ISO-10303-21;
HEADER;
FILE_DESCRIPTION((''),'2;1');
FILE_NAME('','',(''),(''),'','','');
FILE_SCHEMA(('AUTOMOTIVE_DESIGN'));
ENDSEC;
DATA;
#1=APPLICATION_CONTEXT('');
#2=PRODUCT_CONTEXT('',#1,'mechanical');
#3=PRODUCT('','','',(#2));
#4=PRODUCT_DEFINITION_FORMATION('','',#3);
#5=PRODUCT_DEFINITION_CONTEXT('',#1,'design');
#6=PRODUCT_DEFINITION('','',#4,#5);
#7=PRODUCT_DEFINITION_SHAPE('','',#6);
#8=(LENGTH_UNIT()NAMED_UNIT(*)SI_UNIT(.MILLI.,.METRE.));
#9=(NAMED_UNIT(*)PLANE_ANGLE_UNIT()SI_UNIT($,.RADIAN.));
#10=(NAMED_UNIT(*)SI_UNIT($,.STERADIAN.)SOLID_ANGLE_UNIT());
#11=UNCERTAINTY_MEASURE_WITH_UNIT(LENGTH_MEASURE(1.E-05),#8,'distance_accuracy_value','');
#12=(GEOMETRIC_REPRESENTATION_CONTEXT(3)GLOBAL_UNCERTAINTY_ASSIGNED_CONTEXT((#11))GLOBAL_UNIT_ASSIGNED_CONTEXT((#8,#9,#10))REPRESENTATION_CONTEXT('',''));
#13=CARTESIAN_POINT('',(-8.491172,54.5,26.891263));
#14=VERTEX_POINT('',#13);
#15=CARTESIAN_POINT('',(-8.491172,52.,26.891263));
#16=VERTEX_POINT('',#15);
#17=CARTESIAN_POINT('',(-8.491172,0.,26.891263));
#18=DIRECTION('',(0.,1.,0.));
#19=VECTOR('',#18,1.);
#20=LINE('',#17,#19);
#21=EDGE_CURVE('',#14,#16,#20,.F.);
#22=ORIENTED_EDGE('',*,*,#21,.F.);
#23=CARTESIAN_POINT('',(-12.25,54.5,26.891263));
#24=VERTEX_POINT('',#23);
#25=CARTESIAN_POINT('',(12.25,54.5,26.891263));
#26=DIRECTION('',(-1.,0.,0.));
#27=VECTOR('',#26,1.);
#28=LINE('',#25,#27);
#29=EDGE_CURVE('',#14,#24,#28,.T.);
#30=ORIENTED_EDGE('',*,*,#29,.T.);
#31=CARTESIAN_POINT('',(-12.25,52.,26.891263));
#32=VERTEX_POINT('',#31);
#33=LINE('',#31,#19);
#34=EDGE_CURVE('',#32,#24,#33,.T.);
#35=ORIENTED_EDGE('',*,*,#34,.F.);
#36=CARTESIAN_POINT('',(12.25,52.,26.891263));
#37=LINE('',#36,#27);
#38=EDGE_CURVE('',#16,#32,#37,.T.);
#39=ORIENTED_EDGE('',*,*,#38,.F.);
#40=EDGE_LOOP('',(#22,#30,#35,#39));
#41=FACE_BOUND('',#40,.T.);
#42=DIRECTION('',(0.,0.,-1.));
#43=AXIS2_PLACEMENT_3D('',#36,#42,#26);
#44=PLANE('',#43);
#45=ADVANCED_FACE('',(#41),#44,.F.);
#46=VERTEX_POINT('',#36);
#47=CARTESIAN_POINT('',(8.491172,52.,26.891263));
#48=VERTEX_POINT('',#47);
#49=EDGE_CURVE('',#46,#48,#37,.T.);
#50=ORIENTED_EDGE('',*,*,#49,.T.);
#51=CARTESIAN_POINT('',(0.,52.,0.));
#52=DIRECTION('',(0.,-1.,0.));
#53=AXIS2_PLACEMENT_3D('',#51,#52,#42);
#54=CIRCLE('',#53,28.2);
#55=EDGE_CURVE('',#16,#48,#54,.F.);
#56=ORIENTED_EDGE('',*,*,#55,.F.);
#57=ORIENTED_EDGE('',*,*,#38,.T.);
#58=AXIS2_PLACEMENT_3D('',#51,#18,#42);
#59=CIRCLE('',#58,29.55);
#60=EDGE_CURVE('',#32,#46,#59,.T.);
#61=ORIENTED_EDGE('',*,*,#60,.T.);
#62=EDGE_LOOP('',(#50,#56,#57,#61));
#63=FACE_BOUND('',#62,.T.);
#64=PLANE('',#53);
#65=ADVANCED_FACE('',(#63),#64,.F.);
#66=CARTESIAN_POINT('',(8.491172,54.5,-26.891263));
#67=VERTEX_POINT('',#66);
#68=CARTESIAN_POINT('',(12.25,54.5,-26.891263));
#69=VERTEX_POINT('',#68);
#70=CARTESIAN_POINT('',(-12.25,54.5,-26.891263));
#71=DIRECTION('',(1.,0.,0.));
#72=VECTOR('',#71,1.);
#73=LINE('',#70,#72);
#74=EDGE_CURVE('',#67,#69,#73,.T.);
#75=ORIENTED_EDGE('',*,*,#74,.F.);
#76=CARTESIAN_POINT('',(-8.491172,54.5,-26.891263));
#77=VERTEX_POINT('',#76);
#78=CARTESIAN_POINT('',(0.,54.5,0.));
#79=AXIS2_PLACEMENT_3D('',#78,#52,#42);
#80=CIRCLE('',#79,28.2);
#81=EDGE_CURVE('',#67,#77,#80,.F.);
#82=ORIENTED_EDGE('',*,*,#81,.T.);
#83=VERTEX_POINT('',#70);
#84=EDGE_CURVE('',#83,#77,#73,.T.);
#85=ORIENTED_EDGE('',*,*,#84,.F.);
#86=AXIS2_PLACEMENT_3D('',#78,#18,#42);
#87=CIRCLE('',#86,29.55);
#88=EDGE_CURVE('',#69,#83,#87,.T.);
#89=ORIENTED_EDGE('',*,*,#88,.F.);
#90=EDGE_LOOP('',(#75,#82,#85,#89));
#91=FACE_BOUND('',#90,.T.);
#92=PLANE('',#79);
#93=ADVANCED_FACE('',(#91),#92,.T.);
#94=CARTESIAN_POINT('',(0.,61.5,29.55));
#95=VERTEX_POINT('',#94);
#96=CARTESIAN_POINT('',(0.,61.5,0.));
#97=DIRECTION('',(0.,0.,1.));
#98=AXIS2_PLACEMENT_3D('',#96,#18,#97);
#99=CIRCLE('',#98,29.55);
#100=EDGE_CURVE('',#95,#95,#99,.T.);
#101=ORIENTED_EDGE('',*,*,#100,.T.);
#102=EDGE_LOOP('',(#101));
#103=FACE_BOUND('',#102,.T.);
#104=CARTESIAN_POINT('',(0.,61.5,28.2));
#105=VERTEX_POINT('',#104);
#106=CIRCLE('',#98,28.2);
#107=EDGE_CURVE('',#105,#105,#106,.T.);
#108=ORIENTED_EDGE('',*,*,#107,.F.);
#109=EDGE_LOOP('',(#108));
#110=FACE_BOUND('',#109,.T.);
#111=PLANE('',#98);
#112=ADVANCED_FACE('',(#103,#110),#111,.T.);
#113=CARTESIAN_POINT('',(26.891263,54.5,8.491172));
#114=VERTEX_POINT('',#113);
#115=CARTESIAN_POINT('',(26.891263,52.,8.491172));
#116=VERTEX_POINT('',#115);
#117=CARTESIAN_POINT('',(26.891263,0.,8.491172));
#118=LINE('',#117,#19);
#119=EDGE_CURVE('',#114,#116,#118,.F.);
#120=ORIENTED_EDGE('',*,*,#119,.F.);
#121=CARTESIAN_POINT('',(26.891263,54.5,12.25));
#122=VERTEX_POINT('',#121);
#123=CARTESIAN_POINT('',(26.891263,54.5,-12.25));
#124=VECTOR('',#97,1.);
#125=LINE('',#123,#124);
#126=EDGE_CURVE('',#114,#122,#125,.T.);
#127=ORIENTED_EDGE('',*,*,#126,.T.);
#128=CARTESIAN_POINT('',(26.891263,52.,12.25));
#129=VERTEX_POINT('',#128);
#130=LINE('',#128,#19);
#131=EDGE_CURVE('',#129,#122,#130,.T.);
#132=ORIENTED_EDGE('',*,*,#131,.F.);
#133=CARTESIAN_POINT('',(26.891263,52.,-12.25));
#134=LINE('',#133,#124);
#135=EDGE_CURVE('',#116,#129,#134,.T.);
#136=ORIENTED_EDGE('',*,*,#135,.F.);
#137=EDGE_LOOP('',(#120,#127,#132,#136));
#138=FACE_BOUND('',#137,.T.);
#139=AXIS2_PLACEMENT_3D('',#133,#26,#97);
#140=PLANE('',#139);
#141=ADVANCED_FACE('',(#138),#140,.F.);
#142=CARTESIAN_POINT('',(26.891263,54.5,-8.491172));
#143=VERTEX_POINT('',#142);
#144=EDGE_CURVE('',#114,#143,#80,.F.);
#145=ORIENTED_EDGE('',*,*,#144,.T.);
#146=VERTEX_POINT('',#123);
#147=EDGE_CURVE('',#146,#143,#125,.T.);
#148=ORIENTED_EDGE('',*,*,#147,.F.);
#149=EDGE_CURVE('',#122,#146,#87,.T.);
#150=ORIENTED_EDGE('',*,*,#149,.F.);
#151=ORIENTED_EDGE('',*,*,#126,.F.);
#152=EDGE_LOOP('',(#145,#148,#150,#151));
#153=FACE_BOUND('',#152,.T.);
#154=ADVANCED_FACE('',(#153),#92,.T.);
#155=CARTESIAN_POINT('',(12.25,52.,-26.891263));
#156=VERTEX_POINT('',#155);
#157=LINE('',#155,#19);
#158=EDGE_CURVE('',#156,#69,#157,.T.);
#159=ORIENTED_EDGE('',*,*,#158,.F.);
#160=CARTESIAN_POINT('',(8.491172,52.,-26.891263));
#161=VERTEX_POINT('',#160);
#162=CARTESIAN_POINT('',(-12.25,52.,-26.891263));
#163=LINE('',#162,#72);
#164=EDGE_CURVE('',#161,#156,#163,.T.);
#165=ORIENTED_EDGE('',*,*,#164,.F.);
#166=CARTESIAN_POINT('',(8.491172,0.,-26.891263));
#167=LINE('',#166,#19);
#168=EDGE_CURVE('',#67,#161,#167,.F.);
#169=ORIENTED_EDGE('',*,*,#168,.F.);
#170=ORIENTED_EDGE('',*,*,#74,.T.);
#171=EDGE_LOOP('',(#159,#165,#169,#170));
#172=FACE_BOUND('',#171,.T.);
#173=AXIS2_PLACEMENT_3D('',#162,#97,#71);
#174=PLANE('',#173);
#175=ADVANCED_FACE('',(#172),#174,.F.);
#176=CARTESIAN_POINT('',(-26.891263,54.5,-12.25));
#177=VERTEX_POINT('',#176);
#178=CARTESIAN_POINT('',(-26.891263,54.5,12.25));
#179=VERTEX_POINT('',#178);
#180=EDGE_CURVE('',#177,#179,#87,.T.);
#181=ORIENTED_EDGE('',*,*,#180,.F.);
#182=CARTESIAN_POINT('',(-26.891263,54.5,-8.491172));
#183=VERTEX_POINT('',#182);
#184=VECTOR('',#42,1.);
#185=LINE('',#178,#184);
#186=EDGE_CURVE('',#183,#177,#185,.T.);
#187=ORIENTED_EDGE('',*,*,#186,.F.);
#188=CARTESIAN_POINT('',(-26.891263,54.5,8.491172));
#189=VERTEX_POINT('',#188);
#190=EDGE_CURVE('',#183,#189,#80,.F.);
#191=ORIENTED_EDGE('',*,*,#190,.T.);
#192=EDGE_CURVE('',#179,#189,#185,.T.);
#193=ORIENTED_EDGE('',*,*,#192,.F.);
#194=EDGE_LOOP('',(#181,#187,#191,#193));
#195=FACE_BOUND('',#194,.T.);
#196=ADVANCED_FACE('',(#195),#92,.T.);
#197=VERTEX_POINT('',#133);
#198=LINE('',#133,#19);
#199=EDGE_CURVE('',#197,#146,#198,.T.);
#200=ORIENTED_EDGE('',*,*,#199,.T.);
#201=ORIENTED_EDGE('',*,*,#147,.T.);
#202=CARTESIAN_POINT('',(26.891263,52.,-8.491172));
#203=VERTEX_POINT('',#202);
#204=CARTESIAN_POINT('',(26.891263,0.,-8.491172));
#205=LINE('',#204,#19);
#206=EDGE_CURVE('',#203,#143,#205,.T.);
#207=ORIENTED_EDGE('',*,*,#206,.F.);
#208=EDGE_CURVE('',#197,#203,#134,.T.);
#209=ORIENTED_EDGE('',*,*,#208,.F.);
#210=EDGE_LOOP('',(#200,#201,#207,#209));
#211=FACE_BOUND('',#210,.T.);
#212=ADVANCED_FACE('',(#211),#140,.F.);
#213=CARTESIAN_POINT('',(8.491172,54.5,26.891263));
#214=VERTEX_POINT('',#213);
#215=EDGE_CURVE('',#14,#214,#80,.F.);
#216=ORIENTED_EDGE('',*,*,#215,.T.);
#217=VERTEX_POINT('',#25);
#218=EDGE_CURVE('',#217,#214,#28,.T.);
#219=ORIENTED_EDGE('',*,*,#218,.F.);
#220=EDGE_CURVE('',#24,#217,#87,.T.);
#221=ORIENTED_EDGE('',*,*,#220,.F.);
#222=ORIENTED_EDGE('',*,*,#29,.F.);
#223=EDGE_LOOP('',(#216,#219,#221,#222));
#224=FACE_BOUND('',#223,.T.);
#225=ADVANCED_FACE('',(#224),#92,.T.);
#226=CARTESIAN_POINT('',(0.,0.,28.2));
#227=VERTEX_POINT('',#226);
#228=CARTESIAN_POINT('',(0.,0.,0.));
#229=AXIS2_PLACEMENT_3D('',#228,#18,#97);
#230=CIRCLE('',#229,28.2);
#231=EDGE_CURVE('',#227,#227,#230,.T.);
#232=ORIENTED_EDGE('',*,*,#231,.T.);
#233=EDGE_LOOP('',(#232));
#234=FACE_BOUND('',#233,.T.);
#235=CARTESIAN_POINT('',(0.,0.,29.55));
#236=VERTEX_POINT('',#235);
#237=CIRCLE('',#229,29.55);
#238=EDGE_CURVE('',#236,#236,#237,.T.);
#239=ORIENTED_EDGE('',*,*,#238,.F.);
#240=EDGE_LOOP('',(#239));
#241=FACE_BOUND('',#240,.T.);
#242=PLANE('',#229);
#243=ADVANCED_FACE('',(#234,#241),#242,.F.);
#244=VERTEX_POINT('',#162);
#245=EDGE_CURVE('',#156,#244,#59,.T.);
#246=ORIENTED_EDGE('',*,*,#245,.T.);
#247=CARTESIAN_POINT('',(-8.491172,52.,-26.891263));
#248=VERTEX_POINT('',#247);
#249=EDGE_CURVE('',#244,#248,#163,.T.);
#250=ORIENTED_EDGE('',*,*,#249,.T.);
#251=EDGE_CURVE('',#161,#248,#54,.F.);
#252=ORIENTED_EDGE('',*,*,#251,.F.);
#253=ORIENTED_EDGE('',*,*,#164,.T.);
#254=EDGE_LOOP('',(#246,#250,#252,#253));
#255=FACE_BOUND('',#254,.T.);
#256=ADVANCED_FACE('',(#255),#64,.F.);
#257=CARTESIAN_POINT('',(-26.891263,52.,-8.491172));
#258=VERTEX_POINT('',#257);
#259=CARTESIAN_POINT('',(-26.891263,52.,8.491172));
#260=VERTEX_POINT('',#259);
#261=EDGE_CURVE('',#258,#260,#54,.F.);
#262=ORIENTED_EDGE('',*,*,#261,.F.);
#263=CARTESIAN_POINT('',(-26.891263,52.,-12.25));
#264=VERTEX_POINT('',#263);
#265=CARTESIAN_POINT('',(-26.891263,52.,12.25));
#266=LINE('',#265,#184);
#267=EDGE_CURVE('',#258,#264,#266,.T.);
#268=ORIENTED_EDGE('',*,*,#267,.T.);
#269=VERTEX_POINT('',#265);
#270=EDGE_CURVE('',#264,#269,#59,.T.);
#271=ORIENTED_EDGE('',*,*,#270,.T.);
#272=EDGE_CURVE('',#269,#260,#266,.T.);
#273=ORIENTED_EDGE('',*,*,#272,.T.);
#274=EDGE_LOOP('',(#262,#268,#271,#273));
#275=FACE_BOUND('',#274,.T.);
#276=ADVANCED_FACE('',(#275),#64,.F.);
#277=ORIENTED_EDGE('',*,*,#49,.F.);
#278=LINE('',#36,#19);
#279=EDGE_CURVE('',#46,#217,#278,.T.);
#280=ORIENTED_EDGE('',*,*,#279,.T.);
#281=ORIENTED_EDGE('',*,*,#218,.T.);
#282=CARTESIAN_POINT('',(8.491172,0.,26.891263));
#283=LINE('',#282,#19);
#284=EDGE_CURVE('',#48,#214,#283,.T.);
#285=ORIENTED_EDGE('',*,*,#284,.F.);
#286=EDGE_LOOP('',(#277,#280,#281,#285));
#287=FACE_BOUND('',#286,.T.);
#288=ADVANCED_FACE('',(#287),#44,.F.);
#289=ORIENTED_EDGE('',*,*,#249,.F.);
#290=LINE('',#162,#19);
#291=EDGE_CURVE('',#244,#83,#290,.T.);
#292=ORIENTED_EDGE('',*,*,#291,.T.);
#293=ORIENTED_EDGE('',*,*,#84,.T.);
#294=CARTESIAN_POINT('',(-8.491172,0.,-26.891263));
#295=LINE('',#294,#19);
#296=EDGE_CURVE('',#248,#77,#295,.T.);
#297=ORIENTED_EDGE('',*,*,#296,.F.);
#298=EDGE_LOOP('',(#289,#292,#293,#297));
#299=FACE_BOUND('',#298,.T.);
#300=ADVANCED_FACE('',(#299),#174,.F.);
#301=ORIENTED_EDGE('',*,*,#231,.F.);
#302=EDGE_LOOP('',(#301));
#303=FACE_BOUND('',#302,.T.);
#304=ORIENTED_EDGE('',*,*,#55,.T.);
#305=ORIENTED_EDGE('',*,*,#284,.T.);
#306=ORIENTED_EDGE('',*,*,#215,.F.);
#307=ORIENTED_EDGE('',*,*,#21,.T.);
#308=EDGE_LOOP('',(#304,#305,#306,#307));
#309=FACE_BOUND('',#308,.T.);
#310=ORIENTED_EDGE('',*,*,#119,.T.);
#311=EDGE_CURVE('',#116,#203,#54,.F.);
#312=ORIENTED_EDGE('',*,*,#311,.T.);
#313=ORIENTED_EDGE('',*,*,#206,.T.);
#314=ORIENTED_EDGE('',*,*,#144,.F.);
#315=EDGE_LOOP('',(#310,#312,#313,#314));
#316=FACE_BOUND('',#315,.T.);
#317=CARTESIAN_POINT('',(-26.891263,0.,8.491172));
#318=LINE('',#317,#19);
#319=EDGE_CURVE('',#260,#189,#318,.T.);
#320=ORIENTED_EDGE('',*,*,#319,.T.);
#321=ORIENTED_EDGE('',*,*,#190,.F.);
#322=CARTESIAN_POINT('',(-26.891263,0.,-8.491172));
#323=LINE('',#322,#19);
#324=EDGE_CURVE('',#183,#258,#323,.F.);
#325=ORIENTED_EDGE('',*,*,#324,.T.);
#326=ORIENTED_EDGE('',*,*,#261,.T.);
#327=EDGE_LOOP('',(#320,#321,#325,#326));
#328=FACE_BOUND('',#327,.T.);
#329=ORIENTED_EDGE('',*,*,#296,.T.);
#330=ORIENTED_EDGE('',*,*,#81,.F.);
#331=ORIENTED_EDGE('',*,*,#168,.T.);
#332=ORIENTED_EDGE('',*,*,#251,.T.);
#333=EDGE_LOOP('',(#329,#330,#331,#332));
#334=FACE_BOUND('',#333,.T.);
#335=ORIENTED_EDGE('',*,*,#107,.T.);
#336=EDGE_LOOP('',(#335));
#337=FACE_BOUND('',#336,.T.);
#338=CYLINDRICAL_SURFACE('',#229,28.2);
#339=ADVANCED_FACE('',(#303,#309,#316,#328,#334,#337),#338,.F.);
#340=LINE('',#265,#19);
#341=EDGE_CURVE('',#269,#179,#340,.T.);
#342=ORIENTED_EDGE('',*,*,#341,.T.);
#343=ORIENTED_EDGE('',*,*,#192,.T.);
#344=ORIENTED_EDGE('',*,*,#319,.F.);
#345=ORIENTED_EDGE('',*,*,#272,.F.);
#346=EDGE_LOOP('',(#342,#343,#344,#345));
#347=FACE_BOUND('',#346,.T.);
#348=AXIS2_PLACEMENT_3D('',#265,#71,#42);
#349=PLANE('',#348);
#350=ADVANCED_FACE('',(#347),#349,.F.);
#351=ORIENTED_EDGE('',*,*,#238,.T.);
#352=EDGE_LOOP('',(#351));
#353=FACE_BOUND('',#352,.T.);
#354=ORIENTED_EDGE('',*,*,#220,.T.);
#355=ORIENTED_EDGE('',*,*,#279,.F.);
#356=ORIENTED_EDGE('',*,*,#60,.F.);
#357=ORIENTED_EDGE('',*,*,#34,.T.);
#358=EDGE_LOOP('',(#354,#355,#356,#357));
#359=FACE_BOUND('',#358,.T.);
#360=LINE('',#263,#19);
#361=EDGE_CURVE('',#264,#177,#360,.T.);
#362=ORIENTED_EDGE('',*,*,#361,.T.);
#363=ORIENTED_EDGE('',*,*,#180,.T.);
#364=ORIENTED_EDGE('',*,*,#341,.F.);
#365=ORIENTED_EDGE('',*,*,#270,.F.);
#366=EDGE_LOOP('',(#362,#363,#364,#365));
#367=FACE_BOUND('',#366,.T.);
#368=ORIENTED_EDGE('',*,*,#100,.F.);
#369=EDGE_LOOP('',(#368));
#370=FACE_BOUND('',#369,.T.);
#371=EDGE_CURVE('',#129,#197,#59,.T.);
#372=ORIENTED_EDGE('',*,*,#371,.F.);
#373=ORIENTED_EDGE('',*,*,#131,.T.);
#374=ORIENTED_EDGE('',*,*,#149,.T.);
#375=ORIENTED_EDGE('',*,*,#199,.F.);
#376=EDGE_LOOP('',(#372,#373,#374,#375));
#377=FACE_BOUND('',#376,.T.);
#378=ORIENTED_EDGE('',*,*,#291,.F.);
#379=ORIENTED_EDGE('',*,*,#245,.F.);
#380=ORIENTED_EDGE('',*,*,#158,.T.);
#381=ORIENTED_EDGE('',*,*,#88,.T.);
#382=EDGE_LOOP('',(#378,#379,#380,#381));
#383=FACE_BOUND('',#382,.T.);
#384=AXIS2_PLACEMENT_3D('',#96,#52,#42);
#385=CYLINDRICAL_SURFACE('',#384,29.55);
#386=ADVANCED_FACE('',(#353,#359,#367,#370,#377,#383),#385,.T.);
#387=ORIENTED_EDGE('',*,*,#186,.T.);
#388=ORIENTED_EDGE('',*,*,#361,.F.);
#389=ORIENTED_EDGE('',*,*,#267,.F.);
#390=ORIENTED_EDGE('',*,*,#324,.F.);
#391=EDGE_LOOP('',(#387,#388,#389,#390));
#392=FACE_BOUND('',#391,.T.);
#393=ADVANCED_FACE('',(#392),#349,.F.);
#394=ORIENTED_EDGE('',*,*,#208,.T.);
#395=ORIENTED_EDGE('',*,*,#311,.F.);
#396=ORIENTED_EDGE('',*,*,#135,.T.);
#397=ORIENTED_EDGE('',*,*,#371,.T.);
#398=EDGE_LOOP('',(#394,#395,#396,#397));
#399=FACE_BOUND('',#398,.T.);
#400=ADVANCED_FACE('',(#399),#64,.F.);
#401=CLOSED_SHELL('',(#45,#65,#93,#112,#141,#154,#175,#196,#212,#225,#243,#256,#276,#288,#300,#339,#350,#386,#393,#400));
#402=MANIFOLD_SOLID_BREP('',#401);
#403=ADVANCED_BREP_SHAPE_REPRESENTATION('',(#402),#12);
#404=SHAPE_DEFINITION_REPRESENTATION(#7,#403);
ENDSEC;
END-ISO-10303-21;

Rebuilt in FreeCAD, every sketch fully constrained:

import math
import FreeCAD as App
import Part
import Sketcher

doc = App.newDocument("Part")
body = doc.addObject("PartDesign::Body", "Body")

# Sketch on XZ plane
sketch1 = doc.addObject("Sketcher::SketchObject", "Sketch")
body.addObject(sketch1)
sketch1.AttachmentSupport = (doc.XZ_Plane, [""])
sketch1.MapMode = "FlatFace"
sketch1.addGeometry(Part.Circle(App.Vector(0, 0, 0), App.Vector(0, 0, 1), 30), False)
sketch1.addConstraint([
    Sketcher.Constraint("Coincident", 0, 3, -1, 1),
    Sketcher.Constraint("Diameter", 0, 59.1),
])
pad1 = doc.addObject("PartDesign::Pad", "Pad")
body.addObject(pad1)
pad1.Profile = sketch1
pad1.Length = 61.5
pad1.Reversed = True

# Sketch on XZ plane
sketch2 = doc.addObject("Sketcher::SketchObject", "Sketch001")
body.addObject(sketch2)
sketch2.AttachmentSupport = (doc.XZ_Plane, [""])
sketch2.MapMode = "FlatFace"
sketch2.AttachmentOffset = App.Placement(App.Vector(0, 0, -61.5), App.Rotation())
sketch2.addGeometry(Part.Circle(App.Vector(0, 0, 0), App.Vector(0, 0, 1), 28), False)
sketch2.addConstraint([
    Sketcher.Constraint("Coincident", 0, 3, -1, 1),
    Sketcher.Constraint("Diameter", 0, 56.4),
])
pocket1 = doc.addObject("PartDesign::Pocket", "Pocket")
body.addObject(pocket1)
pocket1.Profile = sketch2
pocket1.Length = 61.5
pocket1.Reversed = True

# Sketch on XZ plane
sketch3 = doc.addObject("Sketcher::SketchObject", "Sketch002")
body.addObject(sketch3)
sketch3.AttachmentSupport = (doc.XZ_Plane, [""])
sketch3.MapMode = "FlatFace"
sketch3.AttachmentOffset = App.Placement(App.Vector(0, 0, -52), App.Rotation())
sketch3.addGeometry([
    Part.LineSegment(App.Vector(-12, -27, 0), App.Vector(12, -27, 0)),  # 0
    Part.ArcOfCircle(Part.Circle(App.Vector(0, 0, 0), App.Vector(0, 0, 1), 30), math.radians(-114), math.radians(-66)),  # 1
    Part.LineSegment(App.Vector(27, -12, 0), App.Vector(27, 12, 0)),  # 2
    Part.ArcOfCircle(Part.Circle(App.Vector(0, 0, 0), App.Vector(0, 0, 1), 30), math.radians(-24), math.radians(24)),  # 3
    Part.LineSegment(App.Vector(12, 27, 0), App.Vector(-12, 27, 0)),  # 4
    Part.ArcOfCircle(Part.Circle(App.Vector(0, 0, 0), App.Vector(0, 0, 1), 30), math.radians(66), math.radians(114)),  # 5
    Part.LineSegment(App.Vector(-27, 12, 0), App.Vector(-27, -12, 0)),  # 6
    Part.ArcOfCircle(Part.Circle(App.Vector(0, 0, 0), App.Vector(0, 0, 1), 30), math.radians(156), math.radians(204)),  # 7
], False)
sketch3.addConstraint([
    Sketcher.Constraint("Coincident", 0, 1, 1, 1),
    Sketcher.Constraint("Coincident", 1, 2, 0, 2),
    Sketcher.Constraint("Coincident", 2, 1, 3, 1),
    Sketcher.Constraint("Coincident", 3, 2, 2, 2),
    Sketcher.Constraint("Coincident", 4, 1, 5, 1),
    Sketcher.Constraint("Coincident", 5, 2, 4, 2),
    Sketcher.Constraint("Coincident", 6, 1, 7, 1),
    Sketcher.Constraint("Coincident", 7, 2, 6, 2),
    Sketcher.Constraint("Horizontal", 0),
    Sketcher.Constraint("Vertical", 2),
    Sketcher.Constraint("Horizontal", 4),
    Sketcher.Constraint("Vertical", 6),
    Sketcher.Constraint("Coincident", 1, 3, -1, 1),
    Sketcher.Constraint("Coincident", 3, 3, -1, 1),
    Sketcher.Constraint("Coincident", 5, 3, -1, 1),
    Sketcher.Constraint("Coincident", 7, 3, -1, 1),
    Sketcher.Constraint("Equal", 1, 3),
    Sketcher.Constraint("Equal", 3, 5),
    Sketcher.Constraint("Equal", 5, 7),
    Sketcher.Constraint("Horizontal", 3, 2, 6, 1),
    Sketcher.Constraint("Vertical", 1, 2, 4, 1),
    Sketcher.Constraint("Equal", 4, 2),
    Sketcher.Constraint("Radius", 1, 29.55),
    Sketcher.Constraint("DistanceX", 0, 1, 0, 2, 24.5),
])
pocket2 = doc.addObject("PartDesign::Pocket", "Pocket001")
body.addObject(pocket2)
pocket2.Profile = sketch3
pocket2.Length = 2.5

doc.recompute()
